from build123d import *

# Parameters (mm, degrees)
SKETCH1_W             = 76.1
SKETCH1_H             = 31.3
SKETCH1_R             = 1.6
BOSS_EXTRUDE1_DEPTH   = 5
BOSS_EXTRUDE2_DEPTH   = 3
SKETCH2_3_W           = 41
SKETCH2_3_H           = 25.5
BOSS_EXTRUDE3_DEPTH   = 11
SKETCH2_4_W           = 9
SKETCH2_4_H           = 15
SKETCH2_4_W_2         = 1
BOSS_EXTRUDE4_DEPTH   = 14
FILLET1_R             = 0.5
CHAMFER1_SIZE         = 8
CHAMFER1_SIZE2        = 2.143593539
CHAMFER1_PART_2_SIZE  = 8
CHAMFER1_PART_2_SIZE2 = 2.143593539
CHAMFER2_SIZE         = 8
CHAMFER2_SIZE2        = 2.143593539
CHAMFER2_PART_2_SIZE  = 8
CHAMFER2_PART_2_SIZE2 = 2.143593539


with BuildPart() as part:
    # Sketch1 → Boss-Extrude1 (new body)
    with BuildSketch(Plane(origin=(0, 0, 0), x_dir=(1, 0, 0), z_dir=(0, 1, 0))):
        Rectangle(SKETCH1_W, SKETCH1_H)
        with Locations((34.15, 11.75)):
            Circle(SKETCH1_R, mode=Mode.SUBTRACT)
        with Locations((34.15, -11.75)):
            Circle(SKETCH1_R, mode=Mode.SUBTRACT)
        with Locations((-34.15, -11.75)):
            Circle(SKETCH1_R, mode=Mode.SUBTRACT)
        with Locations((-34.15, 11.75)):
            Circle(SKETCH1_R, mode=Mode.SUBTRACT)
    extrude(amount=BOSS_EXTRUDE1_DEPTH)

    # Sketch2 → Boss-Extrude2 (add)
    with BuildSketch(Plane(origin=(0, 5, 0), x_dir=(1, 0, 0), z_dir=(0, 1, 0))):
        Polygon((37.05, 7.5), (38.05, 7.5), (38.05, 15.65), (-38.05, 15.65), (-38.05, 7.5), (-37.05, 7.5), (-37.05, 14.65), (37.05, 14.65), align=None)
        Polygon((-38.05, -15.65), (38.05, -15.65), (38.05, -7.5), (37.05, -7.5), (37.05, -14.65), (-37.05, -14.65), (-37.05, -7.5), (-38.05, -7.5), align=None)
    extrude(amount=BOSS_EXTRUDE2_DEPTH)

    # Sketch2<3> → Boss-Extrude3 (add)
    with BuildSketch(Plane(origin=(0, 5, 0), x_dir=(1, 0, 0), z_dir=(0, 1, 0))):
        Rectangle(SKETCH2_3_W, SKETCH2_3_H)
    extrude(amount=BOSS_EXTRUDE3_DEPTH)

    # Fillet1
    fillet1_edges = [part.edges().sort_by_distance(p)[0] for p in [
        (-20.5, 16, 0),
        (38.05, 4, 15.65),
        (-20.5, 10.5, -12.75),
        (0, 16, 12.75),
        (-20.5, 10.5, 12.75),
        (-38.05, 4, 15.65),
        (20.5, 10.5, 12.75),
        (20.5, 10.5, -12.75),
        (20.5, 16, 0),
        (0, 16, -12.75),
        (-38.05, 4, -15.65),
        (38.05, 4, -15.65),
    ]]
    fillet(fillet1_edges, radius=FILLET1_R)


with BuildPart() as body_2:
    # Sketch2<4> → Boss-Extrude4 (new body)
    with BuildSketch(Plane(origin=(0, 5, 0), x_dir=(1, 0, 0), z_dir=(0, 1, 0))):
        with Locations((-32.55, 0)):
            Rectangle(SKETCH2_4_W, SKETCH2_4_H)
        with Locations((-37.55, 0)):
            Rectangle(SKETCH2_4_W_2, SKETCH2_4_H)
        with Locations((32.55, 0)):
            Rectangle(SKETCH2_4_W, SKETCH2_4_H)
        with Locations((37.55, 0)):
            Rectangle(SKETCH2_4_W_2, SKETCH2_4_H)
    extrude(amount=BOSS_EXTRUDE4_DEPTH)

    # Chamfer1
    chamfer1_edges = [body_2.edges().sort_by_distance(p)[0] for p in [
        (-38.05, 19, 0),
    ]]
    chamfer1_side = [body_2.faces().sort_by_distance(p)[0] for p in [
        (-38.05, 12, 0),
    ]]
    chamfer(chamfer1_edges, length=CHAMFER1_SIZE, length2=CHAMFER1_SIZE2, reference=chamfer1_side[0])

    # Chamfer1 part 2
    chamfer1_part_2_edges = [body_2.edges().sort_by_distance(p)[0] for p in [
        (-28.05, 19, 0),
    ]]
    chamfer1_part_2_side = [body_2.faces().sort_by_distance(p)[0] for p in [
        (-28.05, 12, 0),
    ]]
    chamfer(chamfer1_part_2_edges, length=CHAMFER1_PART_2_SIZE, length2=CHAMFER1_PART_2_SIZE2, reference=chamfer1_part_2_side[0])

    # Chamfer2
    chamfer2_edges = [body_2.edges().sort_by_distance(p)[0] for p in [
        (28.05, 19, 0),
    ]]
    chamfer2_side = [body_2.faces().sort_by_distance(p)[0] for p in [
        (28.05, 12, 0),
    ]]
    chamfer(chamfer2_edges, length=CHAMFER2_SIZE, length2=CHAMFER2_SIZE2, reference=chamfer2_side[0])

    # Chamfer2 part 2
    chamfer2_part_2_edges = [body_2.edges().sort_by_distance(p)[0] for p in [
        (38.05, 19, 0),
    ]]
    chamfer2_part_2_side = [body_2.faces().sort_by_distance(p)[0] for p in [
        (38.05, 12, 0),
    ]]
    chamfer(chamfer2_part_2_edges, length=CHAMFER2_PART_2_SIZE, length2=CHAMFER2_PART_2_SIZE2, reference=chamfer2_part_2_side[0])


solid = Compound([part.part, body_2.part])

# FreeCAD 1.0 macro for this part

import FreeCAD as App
import Part
import Sketcher
from FreeCAD import Vector
Q = App.Units.Quantity


def edges_at(feature, points):
    """Names of the edges that pass closest to the given points."""
    edges = feature.Shape.Edges
    near = lambda p: min(range(len(edges)), key=lambda i: edges[i].distToShape(Part.Vertex(*p))[0])
    return sorted({f"Edge{near(p) + 1}" for p in points})


def add_polygon(sketch, points):
    """Adds a closed chain of lines whose ends are joined by coincident constraints."""
    first, n = sketch.GeometryCount, len(points)
    for a, b in zip(points, points[1:] + points[:1]):
        sketch.addGeometry(Part.LineSegment(App.Vector(*a, 0), App.Vector(*b, 0)), False)
    for i in range(n):
        sketch.addConstraint(Sketcher.Constraint("Coincident", first + i, 2, first + (i + 1) % n, 1))

doc = App.newDocument("Part")
body = doc.addObject("PartDesign::Body", "Body")

# Sketch on XZ plane
sketch1 = doc.addObject("Sketcher::SketchObject", "Sketch")
body.addObject(sketch1)
sketch1.AttachmentSupport = (doc.XZ_Plane, [""])
sketch1.MapMode = "FlatFace"
add_polygon(sketch1, [(-38, -15.7), (-38, 15.7), (38, 15.7), (38, -15.7)])  # lines 0-3
sketch1.addGeometry(Part.Circle(Vector(-34.1, 11.8, 0), Vector(0, 0, 1), 1.6), False)  # 4
sketch1.addGeometry(Part.Circle(Vector(34.1, 11.8, 0), Vector(0, 0, 1), 1.6), False)  # 5
sketch1.addGeometry(Part.Circle(Vector(-34.1, -11.8, 0), Vector(0, 0, 1), 1.6), False)  # 6
sketch1.addGeometry(Part.Circle(Vector(34.1, -11.8, 0), Vector(0, 0, 1), 1.6), False)  # 7
sketch1.addConstraint([
    Sketcher.Constraint("Vertical", 0),
    Sketcher.Constraint("Horizontal", 1),
    Sketcher.Constraint("Vertical", 2),
    Sketcher.Constraint("Horizontal", 3),
    Sketcher.Constraint("Equal", 4, 5),
    Sketcher.Constraint("Equal", 5, 6),
    Sketcher.Constraint("Equal", 6, 7),
    Sketcher.Constraint("Symmetric", 5, 3, 6, 3, -1, 1),
    Sketcher.Constraint("Symmetric", 4, 3, 7, 3, -1, 1),
    Sketcher.Constraint("Symmetric", 0, 2, 2, 2, -1, 1),
    Sketcher.Constraint("Symmetric", 4, 3, 5, 3, -2),
    Sketcher.Constraint("Diameter", 4, Q("3.2 mm")),
    Sketcher.Constraint("DistanceX", 1, 1, 1, 2, Q("76.1 mm")),
    Sketcher.Constraint("DistanceY", 0, 1, 0, 2, Q("31.3 mm")),
    Sketcher.Constraint("DistanceX", 4, 3, 5, 3, Q("68.3 mm")),
    Sketcher.Constraint("DistanceY", 6, 3, 4, 3, Q("23.5 mm")),
])
pad1 = doc.addObject("PartDesign::Pad", "Pad")
body.addObject(pad1)
pad1.Profile = sketch1
pad1.Length = 5
pad1.Reversed = True

# Sketch on XZ plane
sketch2 = doc.addObject("Sketcher::SketchObject", "Sketch001")
body.addObject(sketch2)
sketch2.AttachmentSupport = (doc.XZ_Plane, [""])
sketch2.MapMode = "FlatFace"
sketch2.AttachmentOffset = App.Placement(Vector(0, 0, -5), App.Rotation())
add_polygon(sketch2, [(37, -7.5), (38, -7.5), (38, -15.7), (-38, -15.7), (-38, -7.5), (-37, -7.5), (-37, -14.7), (37, -14.7)])  # lines 0-7
add_polygon(sketch2, [(-38, 15.7), (38, 15.7), (38, 7.5), (37, 7.5), (37, 14.7), (-37, 14.7), (-37, 7.5), (-38, 7.5)])  # lines 8-15
sketch2.addConstraint([
    Sketcher.Constraint("Horizontal", 0),
    Sketcher.Constraint("Vertical", 1),
    Sketcher.Constraint("Horizontal", 2),
    Sketcher.Constraint("Vertical", 3),
    Sketcher.Constraint("Horizontal", 4),
    Sketcher.Constraint("Vertical", 5),
    Sketcher.Constraint("Horizontal", 6),
    Sketcher.Constraint("Vertical", 7),
    Sketcher.Constraint("Horizontal", 8),
    Sketcher.Constraint("Vertical", 9),
    Sketcher.Constraint("Horizontal", 10),
    Sketcher.Constraint("Vertical", 11),
    Sketcher.Constraint("Horizontal", 12),
    Sketcher.Constraint("Vertical", 13),
    Sketcher.Constraint("Horizontal", 14),
    Sketcher.Constraint("Vertical", 15),
    Sketcher.Constraint("Symmetric", 2, 2, 8, 2, -1, 1),
    Sketcher.Constraint("Symmetric", 4, 2, 10, 2, -1, 1),
    Sketcher.Constraint("Symmetric", 6, 2, 12, 2, -1, 1),
    Sketcher.Constraint("Symmetric", 0, 2, 14, 2, -1, 1),
    Sketcher.Constraint("Symmetric", 0, 2, 3, 2, -2),
    Sketcher.Constraint("Vertical", 7, 2, 10, 2),
    Sketcher.Constraint("DistanceX", 0, 1, 0, 2, Q("1 mm")),
    Sketcher.Constraint("DistanceX", 2, 2, 2, 1, Q("76.1 mm")),
    Sketcher.Constraint("DistanceY", 2, 2, 5, 2, Q("1 mm")),
    Sketcher.Constraint("DistanceY", 0, 2, 9, 2, Q("15 mm")),
    Sketcher.Constraint("DistanceY", 1, 2, 1, 1, Q("8.15 mm")),
])
pad2 = doc.addObject("PartDesign::Pad", "Pad001")
body.addObject(pad2)
pad2.Profile = sketch2
pad2.Length = 3
pad2.Reversed = True

# Sketch on XZ plane
sketch3 = doc.addObject("Sketcher::SketchObject", "Sketch002")
body.addObject(sketch3)
sketch3.AttachmentSupport = (doc.XZ_Plane, [""])
sketch3.MapMode = "FlatFace"
sketch3.AttachmentOffset = App.Placement(Vector(0, 0, -5), App.Rotation())
add_polygon(sketch3, [(-20, -13), (-20, 13), (20, 13), (20, -13)])  # lines 0-3
sketch3.addConstraint([
    Sketcher.Constraint("Vertical", 0),
    Sketcher.Constraint("Horizontal", 1),
    Sketcher.Constraint("Vertical", 2),
    Sketcher.Constraint("Horizontal", 3),
    Sketcher.Constraint("Symmetric", 0, 2, 2, 2, -1, 1),
    Sketcher.Constraint("DistanceX", 1, 1, 1, 2, Q("41 mm")),
    Sketcher.Constraint("DistanceY", 0, 1, 0, 2, Q("25.5 mm")),
])
pad3 = doc.addObject("PartDesign::Pad", "Pad002")
body.addObject(pad3)
pad3.Profile = sketch3
pad3.Length = 11
pad3.Reversed = True
doc.recompute()

fillet = doc.addObject("PartDesign::Fillet", "Fillet")
body.addObject(fillet)
fillet.Base = (pad3, edges_at(pad3, [
    (-20.5, 16, 0),
    (38.05, 4, 15.65),
    (-20.5, 10.5, -12.75),
    (0, 16, 12.75),
    (-20.5, 10.5, 12.75),
    (-38.05, 4, 15.65),
    (20.5, 10.5, 12.75),
    (20.5, 10.5, -12.75),
    (20.5, 16, 0),
    (0, 16, -12.75),
    (-38.05, 4, -15.65),
    (38.05, 4, -15.65),
]))
fillet.Radius = 0.5
body2 = doc.addObject("PartDesign::Body", "Body001")
body2.AllowCompound = True

# Sketch on XZ plane
sketch4 = doc.addObject("Sketcher::SketchObject", "Sketch003")
body2.addObject(sketch4)
sketch4.AttachmentSupport = (doc.getObject("XZ_Plane001"), [""])
sketch4.MapMode = "FlatFace"
sketch4.AttachmentOffset = App.Placement(Vector(0, 0, -5), App.Rotation())
add_polygon(sketch4, [(-28, 8), (-28, -8), (-38, -8), (-38, 8)])  # lines 0-3
add_polygon(sketch4, [(28, -8), (28, 8), (38, 8), (38, -8)])  # lines 4-7
sketch4.addConstraint([
    Sketcher.Constraint("Vertical", 0),
    Sketcher.Constraint("Horizontal", 1),
    Sketcher.Constraint("Vertical", 2),
    Sketcher.Constraint("Horizontal", 3),
    Sketcher.Constraint("Vertical", 4),
    Sketcher.Constraint("Horizontal", 5),
    Sketcher.Constraint("Vertical", 6),
    Sketcher.Constraint("Horizontal", 7),
    Sketcher.Constraint("Symmetric", 0, 2, 4, 2, -1, 1),
    Sketcher.Constraint("Symmetric", 2, 2, 6, 2, -1, 1),
    Sketcher.Constraint("Horizontal", 3, 2, 4, 2),
    Sketcher.Constraint("DistanceX", 1, 2, 1, 1, Q("10 mm")),
    Sketcher.Constraint("DistanceY", 0, 2, 0, 1, Q("15 mm")),
    Sketcher.Constraint("DistanceX", 3, 2, 4, 2, Q("56.1 mm")),
])
pad4 = doc.addObject("PartDesign::Pad", "Pad003")
body2.addObject(pad4)
pad4.Profile = sketch4
pad4.Length = 14
pad4.Reversed = True
doc.recompute()

chamfer = doc.addObject("PartDesign::Chamfer", "Chamfer")
body2.addObject(chamfer)
chamfer.Base = (pad4, edges_at(pad4, [(-38.05, 19, 0)]))
chamfer.ChamferType = "Two distances"
chamfer.Size = 8
chamfer.Size2 = 2.143594
doc.recompute()

chamfer2 = doc.addObject("PartDesign::Chamfer", "Chamfer001")
body2.addObject(chamfer2)
chamfer2.Base = (chamfer, edges_at(chamfer, [(-28.05, 19, 0)]))
chamfer2.ChamferType = "Two distances"
chamfer2.Size = 8
chamfer2.Size2 = 2.143594
chamfer2.FlipDirection = True
doc.recompute()

chamfer3 = doc.addObject("PartDesign::Chamfer", "Chamfer002")
body2.addObject(chamfer3)
chamfer3.Base = (chamfer2, edges_at(chamfer2, [(28.05, 19, 0)]))
chamfer3.ChamferType = "Two distances"
chamfer3.Size = 8
chamfer3.Size2 = 2.143594
doc.recompute()

chamfer4 = doc.addObject("PartDesign::Chamfer", "Chamfer003")
body2.addObject(chamfer4)
chamfer4.Base = (chamfer3, edges_at(chamfer3, [(38.05, 19, 0)]))
chamfer4.ChamferType = "Two distances"
chamfer4.Size = 8
chamfer4.Size2 = 2.143594
chamfer4.FlipDirection = True

doc.recompute()
